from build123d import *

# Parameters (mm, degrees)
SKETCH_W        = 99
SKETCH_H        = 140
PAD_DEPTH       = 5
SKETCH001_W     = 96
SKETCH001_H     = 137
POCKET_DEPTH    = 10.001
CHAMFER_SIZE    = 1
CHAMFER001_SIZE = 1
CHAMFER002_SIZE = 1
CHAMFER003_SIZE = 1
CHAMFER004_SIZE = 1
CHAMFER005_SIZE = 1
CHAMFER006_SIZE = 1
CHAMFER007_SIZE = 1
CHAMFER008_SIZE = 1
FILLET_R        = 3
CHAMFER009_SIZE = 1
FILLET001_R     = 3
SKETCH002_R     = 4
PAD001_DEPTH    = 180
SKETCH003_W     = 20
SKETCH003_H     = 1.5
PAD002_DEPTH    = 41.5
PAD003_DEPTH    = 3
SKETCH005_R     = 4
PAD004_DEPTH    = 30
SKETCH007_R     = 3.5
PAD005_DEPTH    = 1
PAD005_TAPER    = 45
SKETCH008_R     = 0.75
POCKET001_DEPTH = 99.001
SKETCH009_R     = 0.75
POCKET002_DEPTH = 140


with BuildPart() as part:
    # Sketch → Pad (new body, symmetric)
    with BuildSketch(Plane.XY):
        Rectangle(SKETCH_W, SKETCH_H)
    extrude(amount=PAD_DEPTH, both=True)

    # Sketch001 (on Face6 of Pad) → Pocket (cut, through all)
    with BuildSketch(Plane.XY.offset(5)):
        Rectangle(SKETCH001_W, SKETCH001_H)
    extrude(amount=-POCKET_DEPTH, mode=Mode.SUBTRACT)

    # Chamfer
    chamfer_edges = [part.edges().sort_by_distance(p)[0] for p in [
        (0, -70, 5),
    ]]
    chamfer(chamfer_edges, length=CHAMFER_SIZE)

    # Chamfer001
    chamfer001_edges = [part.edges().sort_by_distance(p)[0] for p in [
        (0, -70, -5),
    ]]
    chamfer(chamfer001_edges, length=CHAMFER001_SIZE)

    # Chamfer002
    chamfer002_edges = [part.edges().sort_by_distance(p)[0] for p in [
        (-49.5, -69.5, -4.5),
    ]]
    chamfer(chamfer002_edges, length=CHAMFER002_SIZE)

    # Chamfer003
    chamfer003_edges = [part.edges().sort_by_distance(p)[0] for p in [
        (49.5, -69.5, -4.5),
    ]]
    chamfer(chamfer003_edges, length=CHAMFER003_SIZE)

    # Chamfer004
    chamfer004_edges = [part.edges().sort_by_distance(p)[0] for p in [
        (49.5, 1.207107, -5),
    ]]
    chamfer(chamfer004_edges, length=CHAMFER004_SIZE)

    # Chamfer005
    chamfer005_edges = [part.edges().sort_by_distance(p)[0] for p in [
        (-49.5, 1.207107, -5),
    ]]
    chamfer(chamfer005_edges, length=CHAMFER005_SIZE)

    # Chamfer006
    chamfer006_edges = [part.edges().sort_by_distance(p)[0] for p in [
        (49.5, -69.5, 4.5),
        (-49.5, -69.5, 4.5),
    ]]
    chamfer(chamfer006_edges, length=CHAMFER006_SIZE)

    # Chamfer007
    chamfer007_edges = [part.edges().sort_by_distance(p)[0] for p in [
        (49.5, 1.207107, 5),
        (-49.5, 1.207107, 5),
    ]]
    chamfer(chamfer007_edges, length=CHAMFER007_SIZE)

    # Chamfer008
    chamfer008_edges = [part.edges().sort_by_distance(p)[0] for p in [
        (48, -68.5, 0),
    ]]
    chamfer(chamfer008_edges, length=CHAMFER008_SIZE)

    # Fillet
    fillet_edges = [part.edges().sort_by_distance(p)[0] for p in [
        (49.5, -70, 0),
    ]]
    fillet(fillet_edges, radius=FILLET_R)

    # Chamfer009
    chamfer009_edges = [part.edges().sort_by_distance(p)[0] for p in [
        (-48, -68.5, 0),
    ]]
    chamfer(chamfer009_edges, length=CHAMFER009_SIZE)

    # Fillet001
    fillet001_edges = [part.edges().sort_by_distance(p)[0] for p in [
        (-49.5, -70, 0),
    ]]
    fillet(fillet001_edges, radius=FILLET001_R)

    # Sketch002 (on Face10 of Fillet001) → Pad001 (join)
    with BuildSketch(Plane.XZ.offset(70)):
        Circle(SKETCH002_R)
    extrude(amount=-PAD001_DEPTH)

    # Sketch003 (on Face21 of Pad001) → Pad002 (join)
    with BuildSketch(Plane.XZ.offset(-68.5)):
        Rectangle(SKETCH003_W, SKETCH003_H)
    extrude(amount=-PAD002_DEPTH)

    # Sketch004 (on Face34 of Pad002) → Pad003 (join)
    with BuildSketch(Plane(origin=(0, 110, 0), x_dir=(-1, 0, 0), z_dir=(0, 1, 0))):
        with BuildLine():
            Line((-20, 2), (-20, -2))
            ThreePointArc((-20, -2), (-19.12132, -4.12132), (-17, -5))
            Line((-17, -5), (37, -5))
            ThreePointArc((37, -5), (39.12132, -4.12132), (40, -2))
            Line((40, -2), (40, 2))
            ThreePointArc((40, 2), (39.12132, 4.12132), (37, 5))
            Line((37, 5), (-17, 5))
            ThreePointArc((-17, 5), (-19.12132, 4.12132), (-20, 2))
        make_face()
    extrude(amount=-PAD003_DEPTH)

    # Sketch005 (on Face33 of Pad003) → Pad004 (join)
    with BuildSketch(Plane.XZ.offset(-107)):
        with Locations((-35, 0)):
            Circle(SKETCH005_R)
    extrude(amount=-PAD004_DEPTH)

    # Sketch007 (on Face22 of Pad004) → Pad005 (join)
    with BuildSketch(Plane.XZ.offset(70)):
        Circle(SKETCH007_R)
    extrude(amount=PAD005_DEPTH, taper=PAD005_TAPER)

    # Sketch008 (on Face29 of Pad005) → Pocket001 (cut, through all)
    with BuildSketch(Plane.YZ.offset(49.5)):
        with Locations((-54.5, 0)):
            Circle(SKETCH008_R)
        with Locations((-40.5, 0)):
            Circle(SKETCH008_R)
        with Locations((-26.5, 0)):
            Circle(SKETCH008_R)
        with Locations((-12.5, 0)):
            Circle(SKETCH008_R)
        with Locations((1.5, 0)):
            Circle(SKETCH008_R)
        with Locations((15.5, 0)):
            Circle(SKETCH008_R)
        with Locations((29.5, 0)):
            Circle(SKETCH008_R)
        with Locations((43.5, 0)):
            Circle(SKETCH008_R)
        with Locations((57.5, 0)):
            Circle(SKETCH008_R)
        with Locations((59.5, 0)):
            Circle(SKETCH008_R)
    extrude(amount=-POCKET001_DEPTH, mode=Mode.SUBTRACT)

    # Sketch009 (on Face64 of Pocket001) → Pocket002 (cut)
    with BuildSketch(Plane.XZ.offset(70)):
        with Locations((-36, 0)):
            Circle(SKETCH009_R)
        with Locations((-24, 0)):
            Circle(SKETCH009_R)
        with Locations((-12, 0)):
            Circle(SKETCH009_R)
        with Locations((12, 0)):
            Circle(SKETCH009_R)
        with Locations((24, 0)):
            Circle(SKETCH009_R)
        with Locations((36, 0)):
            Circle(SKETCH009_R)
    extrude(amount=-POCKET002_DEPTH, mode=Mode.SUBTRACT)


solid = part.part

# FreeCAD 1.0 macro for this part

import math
import FreeCAD as App
import Part
import Sketcher
Q = App.Units.Quantity


def edges_at(feature, points):
    """Names of the edges that pass closest to the given points."""
    edges = feature.Shape.Edges
    near = lambda p: min(range(len(edges)), key=lambda i: edges[i].distToShape(Part.Vertex(*p))[0])
    return sorted({f"Edge{near(p) + 1}" for p in points})

doc = App.newDocument("Part")
body = doc.addObject("PartDesign::Body", "Body")

sketch1 = doc.addObject("Sketcher::SketchObject", "Sketch")
body.addObject(sketch1)
sketch1.AttachmentSupport = (doc.XY_Plane, [""])
sketch1.MapMode = "FlatFace"
sketch1.addGeometry([
    Part.LineSegment(App.Vector(-49.5, 70, 0), App.Vector(-49.5, -70, 0)),
    Part.LineSegment(App.Vector(-49.5, -70, 0), App.Vector(49.5, -70, 0)),
    Part.LineSegment(App.Vector(49.5, -70, 0), App.Vector(49.5, 70, 0)),
    Part.LineSegment(App.Vector(49.5, 70, 0), App.Vector(-49.5, 70, 0)),
], False)
sketch1.addConstraint([
    Sketcher.Constraint("Coincident", 0, 2, 1, 1),
    Sketcher.Constraint("Coincident", 1, 2, 2, 1),
    Sketcher.Constraint("Coincident", 2, 2, 3, 1),
    Sketcher.Constraint("Coincident", 3, 2, 0, 1),
    Sketcher.Constraint("Vertical", 0),
    Sketcher.Constraint("Horizontal", 1),
    Sketcher.Constraint("Vertical", 2),
    Sketcher.Constraint("Horizontal", 3),
    Sketcher.Constraint("Symmetric", 0, 2, 2, 2, -1, 1),
    Sketcher.Constraint("DistanceX", 1, 1, 1, 2, Q("99 mm")),
    Sketcher.Constraint("DistanceY", 0, 2, 0, 1, Q("140 mm")),
])
pad1 = doc.addObject("PartDesign::Pad", "Pad")
body.addObject(pad1)
pad1.Profile = sketch1
pad1.Length = 10
pad1.Midplane = True

sketch2 = doc.addObject("Sketcher::SketchObject", "Sketch001")
body.addObject(sketch2)
sketch2.AttachmentSupport = (doc.XY_Plane, [""])
sketch2.MapMode = "FlatFace"
sketch2.AttachmentOffset = App.Placement(App.Vector(0, 0, 5), App.Rotation())
sketch2.addGeometry([
    Part.LineSegment(App.Vector(-48, 68.5, 0), App.Vector(-48, -68.5, 0)),
    Part.LineSegment(App.Vector(-48, -68.5, 0), App.Vector(48, -68.5, 0)),
    Part.LineSegment(App.Vector(48, -68.5, 0), App.Vector(48, 68.5, 0)),
    Part.LineSegment(App.Vector(48, 68.5, 0), App.Vector(-48, 68.5, 0)),
], False)
sketch2.addConstraint([
    Sketcher.Constraint("Coincident", 0, 2, 1, 1),
    Sketcher.Constraint("Coincident", 1, 2, 2, 1),
    Sketcher.Constraint("Coincident", 2, 2, 3, 1),
    Sketcher.Constraint("Coincident", 3, 2, 0, 1),
    Sketcher.Constraint("Vertical", 0),
    Sketcher.Constraint("Horizontal", 1),
    Sketcher.Constraint("Vertical", 2),
    Sketcher.Constraint("Horizontal", 3),
    Sketcher.Constraint("Symmetric", 0, 2, 2, 2, -1, 1),
    Sketcher.Constraint("DistanceX", 1, 1, 1, 2, Q("96 mm")),
    Sketcher.Constraint("DistanceY", 0, 2, 0, 1, Q("137 mm")),
])
pocket1 = doc.addObject("PartDesign::Pocket", "Pocket")
body.addObject(pocket1)
pocket1.Profile = sketch2
pocket1.Type = "ThroughAll"
doc.recompute()

chamfer = doc.addObject("PartDesign::Chamfer", "Chamfer")
body.addObject(chamfer)
chamfer.Base = (pocket1, edges_at(pocket1, [(0, -70, 5)]))
chamfer.Size = 1
doc.recompute()

chamfer2 = doc.addObject("PartDesign::Chamfer", "Chamfer001")
body.addObject(chamfer2)
chamfer2.Base = (chamfer, edges_at(chamfer, [(0, -70, -5)]))
chamfer2.Size = 1
doc.recompute()

chamfer3 = doc.addObject("PartDesign::Chamfer", "Chamfer002")
body.addObject(chamfer3)
chamfer3.Base = (chamfer2, edges_at(chamfer2, [(-49.5, -69.5, -4.5)]))
chamfer3.Size = 1
doc.recompute()

chamfer4 = doc.addObject("PartDesign::Chamfer", "Chamfer003")
body.addObject(chamfer4)
chamfer4.Base = (chamfer3, edges_at(chamfer3, [(49.5, -69.5, -4.5)]))
chamfer4.Size = 1
doc.recompute()

chamfer5 = doc.addObject("PartDesign::Chamfer", "Chamfer004")
body.addObject(chamfer5)
chamfer5.Base = (chamfer4, edges_at(chamfer4, [(49.5, 1.207, -5)]))
chamfer5.Size = 1
doc.recompute()

chamfer6 = doc.addObject("PartDesign::Chamfer", "Chamfer005")
body.addObject(chamfer6)
chamfer6.Base = (chamfer5, edges_at(chamfer5, [(-49.5, 1.207, -5)]))
chamfer6.Size = 1
doc.recompute()

chamfer7 = doc.addObject("PartDesign::Chamfer", "Chamfer006")
body.addObject(chamfer7)
chamfer7.Base = (chamfer6, edges_at(chamfer6, [(49.5, -69.5, 4.5), (-49.5, -69.5, 4.5)]))
chamfer7.Size = 1
doc.recompute()

chamfer8 = doc.addObject("PartDesign::Chamfer", "Chamfer007")
body.addObject(chamfer8)
chamfer8.Base = (chamfer7, edges_at(chamfer7, [(49.5, 1.207, 5), (-49.5, 1.207, 5)]))
chamfer8.Size = 1
doc.recompute()

chamfer9 = doc.addObject("PartDesign::Chamfer", "Chamfer008")
body.addObject(chamfer9)
chamfer9.Base = (chamfer8, edges_at(chamfer8, [(48, -68.5, 0)]))
chamfer9.Size = 1
doc.recompute()

fillet = doc.addObject("PartDesign::Fillet", "Fillet")
body.addObject(fillet)
fillet.Base = (chamfer9, edges_at(chamfer9, [(49.5, -70, 0)]))
fillet.Radius = 3
doc.recompute()

chamfer10 = doc.addObject("PartDesign::Chamfer", "Chamfer009")
body.addObject(chamfer10)
chamfer10.Base = (fillet, edges_at(fillet, [(-48, -68.5, 0)]))
chamfer10.Size = 1
doc.recompute()

fillet2 = doc.addObject("PartDesign::Fillet", "Fillet001")
body.addObject(fillet2)
fillet2.Base = (chamfer10, edges_at(chamfer10, [(-49.5, -70, 0)]))
fillet2.Radius = 3

sketch3 = doc.addObject("Sketcher::SketchObject", "Sketch002")
body.addObject(sketch3)
sketch3.AttachmentSupport = (doc.XZ_Plane, [""])
sketch3.MapMode = "FlatFace"
sketch3.AttachmentOffset = App.Placement(App.Vector(0, 0, 70), App.Rotation())
sketch3.addGeometry(Part.Circle(App.Vector(0, 0, 0), App.Vector(0, 0, 1), 4), False)
sketch3.addConstraint([
    Sketcher.Constraint("Coincident", 0, 3, -1, 1),
    Sketcher.Constraint("Diameter", 0, Q("8 mm")),
])
pad2 = doc.addObject("PartDesign::Pad", "Pad001")
body.addObject(pad2)
pad2.Profile = sketch3
pad2.Length = 180
pad2.Reversed = True

sketch4 = doc.addObject("Sketcher::SketchObject", "Sketch003")
body.addObject(sketch4)
sketch4.AttachmentSupport = (doc.XZ_Plane, [""])
sketch4.MapMode = "FlatFace"
sketch4.AttachmentOffset = App.Placement(App.Vector(0, 0, -68.5), App.Rotation())
sketch4.addGeometry([
    Part.LineSegment(App.Vector(-10, 0.75, 0), App.Vector(-10, -0.75, 0)),
    Part.LineSegment(App.Vector(-10, -0.75, 0), App.Vector(10, -0.75, 0)),
    Part.LineSegment(App.Vector(10, -0.75, 0), App.Vector(10, 0.75, 0)),
    Part.LineSegment(App.Vector(10, 0.75, 0), App.Vector(-10, 0.75, 0)),
], False)
sketch4.addConstraint([
    Sketcher.Constraint("Coincident", 0, 2, 1, 1),
    Sketcher.Constraint("Coincident", 1, 2, 2, 1),
    Sketcher.Constraint("Coincident", 2, 2, 3, 1),
    Sketcher.Constraint("Coincident", 3, 2, 0, 1),
    Sketcher.Constraint("Vertical", 0),
    Sketcher.Constraint("Horizontal", 1),
    Sketcher.Constraint("Vertical", 2),
    Sketcher.Constraint("Horizontal", 3),
    Sketcher.Constraint("Symmetric", 0, 2, 2, 2, -1, 1),
    Sketcher.Constraint("DistanceX", 1, 1, 1, 2, Q("20 mm")),
    Sketcher.Constraint("DistanceY", 0, 2, 0, 1, Q("1.5 mm")),
])
pad3 = doc.addObject("PartDesign::Pad", "Pad002")
body.addObject(pad3)
pad3.Profile = sketch4
pad3.Length = 41.5
pad3.Reversed = True

sketch5 = doc.addObject("Sketcher::SketchObject", "Sketch004")
body.addObject(sketch5)
sketch5.AttachmentSupport = (doc.XZ_Plane, [""])
sketch5.MapMode = "FlatFace"
sketch5.AttachmentOffset = App.Placement(App.Vector(0, 0, -110), App.Rotation())
sketch5.addGeometry([
    Part.LineSegment(App.Vector(20, 2, 0), App.Vector(20, -2, 0)),
    Part.ArcOfCircle(Part.Circle(App.Vector(16.999999, -1.999999, 0), App.Vector(0, 0, 1), 3.000001), math.radians(-89.999978), math.radians(-0.000022)),
    Part.LineSegment(App.Vector(17, -5, 0), App.Vector(-37, -5, 0)),
    Part.ArcOfCircle(Part.Circle(App.Vector(-36.999999, -1.999999, 0), App.Vector(0, 0, 1), 3.000001), math.radians(-179.999978), math.radians(-90.000022)),
    Part.LineSegment(App.Vector(-40, -2, 0), App.Vector(-40, 2, 0)),
    Part.ArcOfCircle(Part.Circle(App.Vector(-36.999999, 1.999999, 0), App.Vector(0, 0, 1), 3.000001), math.radians(90.000022), math.radians(179.999978)),
    Part.LineSegment(App.Vector(-37, 5, 0), App.Vector(17, 5, 0)),
    Part.ArcOfCircle(Part.Circle(App.Vector(16.999999, 1.999999, 0), App.Vector(0, 0, 1), 3.000001), math.radians(0.000022), math.radians(89.999978)),
], False)
sketch5.addConstraint([
    Sketcher.Constraint("Tangent", 0, 2, 1, 2),
    Sketcher.Constraint("Tangent", 1, 1, 2, 1),
    Sketcher.Constraint("Tangent", 2, 2, 3, 2),
    Sketcher.Constraint("Tangent", 3, 1, 4, 1),
    Sketcher.Constraint("Tangent", 4, 2, 5, 2),
    Sketcher.Constraint("Tangent", 5, 1, 6, 1),
    Sketcher.Constraint("Tangent", 6, 2, 7, 2),
    Sketcher.Constraint("Tangent", 7, 1, 0, 1),
    Sketcher.Constraint("Vertical", 0),
    Sketcher.Constraint("Horizontal", 2),
    Sketcher.Constraint("Vertical", 4),
    Sketcher.Constraint("Horizontal", 6),
    Sketcher.Constraint("Equal", 1, 3),
    Sketcher.Constraint("Equal", 3, 5),
    Sketcher.Constraint("Equal", 5, 7),
    Sketcher.Constraint("Radius", 1, Q("3.000001 mm")),
    Sketcher.Constraint("DistanceX", 2, 2, 2, 1, Q("54 mm")),
    Sketcher.Constraint("DistanceY", 0, 2, 0, 1, Q("4 mm")),
    Sketcher.Constraint("DistanceX", -1, 1, 1, 3, Q("16.999999 mm")),
    Sketcher.Constraint("DistanceY", 1, 3, -1, 1, Q("1.999999 mm")),
])
pad4 = doc.addObject("PartDesign::Pad", "Pad003")
body.addObject(pad4)
pad4.Profile = sketch5
pad4.Length = 3

sketch6 = doc.addObject("Sketcher::SketchObject", "Sketch005")
body.addObject(sketch6)
sketch6.AttachmentSupport = (doc.XZ_Plane, [""])
sketch6.MapMode = "FlatFace"
sketch6.AttachmentOffset = App.Placement(App.Vector(0, 0, -107), App.Rotation())
sketch6.addGeometry(Part.Circle(App.Vector(-35, 0, 0), App.Vector(0, 0, 1), 4), False)
sketch6.addConstraint([
    Sketcher.Constraint("PointOnObject", 0, 3, -1),
    Sketcher.Constraint("Diameter", 0, Q("8 mm")),
    Sketcher.Constraint("DistanceX", 0, 3, -1, 1, Q("35 mm")),
])
pad5 = doc.addObject("PartDesign::Pad", "Pad004")
body.addObject(pad5)
pad5.Profile = sketch6
pad5.Length = 30
pad5.Reversed = True

sketch7 = doc.addObject("Sketcher::SketchObject", "Sketch006")
body.addObject(sketch7)
sketch7.AttachmentSupport = (doc.XZ_Plane, [""])
sketch7.MapMode = "FlatFace"
sketch7.AttachmentOffset = App.Placement(App.Vector(0, 0, 70), App.Rotation())
sketch7.addGeometry(Part.Circle(App.Vector(0, 0, 0), App.Vector(0, 0, 1), 3.5), False)
sketch7.addConstraint([
    Sketcher.Constraint("Coincident", 0, 3, -1, 1),
    Sketcher.Constraint("Diameter", 0, Q("7 mm")),
])
pad6 = doc.addObject("PartDesign::Pad", "Pad005")
body.addObject(pad6)
pad6.Profile = sketch7
pad6.Length = 1
pad6.TaperAngle = -45

sketch8 = doc.addObject("Sketcher::SketchObject", "Sketch007")
body.addObject(sketch8)
sketch8.AttachmentSupport = (doc.YZ_Plane, [""])
sketch8.MapMode = "FlatFace"
sketch8.AttachmentOffset = App.Placement(App.Vector(0, 0, 49.5), App.Rotation())
sketch8.addGeometry([
    Part.Circle(App.Vector(-54.5, 0, 0), App.Vector(0, 0, 1), 0.75),
    Part.Circle(App.Vector(-40.5, 0, 0), App.Vector(0, 0, 1), 0.75),
    Part.Circle(App.Vector(-26.5, 0, 0), App.Vector(0, 0, 1), 0.75),
    Part.Circle(App.Vector(-12.5, 0, 0), App.Vector(0, 0, 1), 0.75),
    Part.Circle(App.Vector(1.5, 0, 0), App.Vector(0, 0, 1), 0.75),
    Part.Circle(App.Vector(15.5, 0, 0), App.Vector(0, 0, 1), 0.75),
    Part.Circle(App.Vector(29.5, 0, 0), App.Vector(0, 0, 1), 0.75),
    Part.Circle(App.Vector(43.5, 0, 0), App.Vector(0, 0, 1), 0.75),
    Part.Circle(App.Vector(57.5, 0, 0), App.Vector(0, 0, 1), 0.75),
    Part.Circle(App.Vector(59.5, 0, 0), App.Vector(0, 0, 1), 0.75),
], False)
sketch8.addConstraint([
    Sketcher.Constraint("Equal", 0, 1),
    Sketcher.Constraint("Equal", 1, 2),
    Sketcher.Constraint("Equal", 2, 3),
    Sketcher.Constraint("Equal", 3, 4),
    Sketcher.Constraint("Equal", 4, 5),
    Sketcher.Constraint("Equal", 5, 6),
    Sketcher.Constraint("Equal", 6, 7),
    Sketcher.Constraint("Equal", 7, 8),
    Sketcher.Constraint("Equal", 8, 9),
    Sketcher.Constraint("PointOnObject", 0, 3, -1),
    Sketcher.Constraint("PointOnObject", 1, 3, -1),
    Sketcher.Constraint("PointOnObject", 2, 3, -1),
    Sketcher.Constraint("PointOnObject", 3, 3, -1),
    Sketcher.Constraint("PointOnObject", 4, 3, -1),
    Sketcher.Constraint("PointOnObject", 5, 3, -1),
    Sketcher.Constraint("PointOnObject", 6, 3, -1),
    Sketcher.Constraint("PointOnObject", 7, 3, -1),
    Sketcher.Constraint("PointOnObject", 8, 3, -1),
    Sketcher.Constraint("PointOnObject", 9, 3, -1),
    Sketcher.Constraint("Diameter", 0, Q("1.5 mm")),
    Sketcher.Constraint("DistanceX", 0, 3, 1, 3, Q("14 mm")),
    Sketcher.Constraint("DistanceX", 1, 3, 2, 3, Q("14 mm")),
    Sketcher.Constraint("DistanceX", 2, 3, 3, 3, Q("14 mm")),
    Sketcher.Constraint("DistanceX", 3, 3, 4, 3, Q("14 mm")),
    Sketcher.Constraint("DistanceX", 4, 3, 5, 3, Q("14 mm")),
    Sketcher.Constraint("DistanceX", 5, 3, 6, 3, Q("14 mm")),
    Sketcher.Constraint("DistanceX", 6, 3, 7, 3, Q("14 mm")),
    Sketcher.Constraint("DistanceX", 7, 3, 8, 3, Q("14 mm")),
    Sketcher.Constraint("DistanceX", 8, 3, 9, 3, Q("2 mm")),
    Sketcher.Constraint("DistanceX", 0, 3, -1, 1, Q("54.5 mm")),
])
pocket2 = doc.addObject("PartDesign::Pocket", "Pocket001")
body.addObject(pocket2)
pocket2.Profile = sketch8
pocket2.Type = "ThroughAll"

sketch9 = doc.addObject("Sketcher::SketchObject", "Sketch008")
body.addObject(sketch9)
sketch9.AttachmentSupport = (doc.XZ_Plane, [""])
sketch9.MapMode = "FlatFace"
sketch9.AttachmentOffset = App.Placement(App.Vector(0, 0, 70), App.Rotation())
sketch9.addGeometry([
    Part.Circle(App.Vector(-36, 0, 0), App.Vector(0, 0, 1), 0.75),
    Part.Circle(App.Vector(-24, 0, 0), App.Vector(0, 0, 1), 0.75),
    Part.Circle(App.Vector(-12, 0, 0), App.Vector(0, 0, 1), 0.75),
    Part.Circle(App.Vector(12, 0, 0), App.Vector(0, 0, 1), 0.75),
    Part.Circle(App.Vector(24, 0, 0), App.Vector(0, 0, 1), 0.75),
    Part.Circle(App.Vector(36, 0, 0), App.Vector(0, 0, 1), 0.75),
], False)
sketch9.addConstraint([
    Sketcher.Constraint("Equal", 0, 1),
    Sketcher.Constraint("Equal", 1, 2),
    Sketcher.Constraint("Equal", 2, 3),
    Sketcher.Constraint("Equal", 3, 4),
    Sketcher.Constraint("Equal", 4, 5),
    Sketcher.Constraint("Symmetric", 2, 3, 3, 3, -1, 1),
    Sketcher.Constraint("Symmetric", 1, 3, 4, 3, -1, 1),
    Sketcher.Constraint("Symmetric", 0, 3, 5, 3, -1, 1),
    Sketcher.Constraint("PointOnObject", 0, 3, -1),
    Sketcher.Constraint("PointOnObject", 1, 3, -1),
    Sketcher.Constraint("PointOnObject", 2, 3, -1),
    Sketcher.Constraint("Diameter", 0, Q("1.5 mm")),
    Sketcher.Constraint("DistanceX", 0, 3, -1, 1, Q("36 mm")),
    Sketcher.Constraint("DistanceX", 1, 3, -1, 1, Q("24 mm")),
    Sketcher.Constraint("DistanceX", 2, 3, -1, 1, Q("12 mm")),
])
pocket3 = doc.addObject("PartDesign::Pocket", "Pocket002")
body.addObject(pocket3)
pocket3.Profile = sketch9
pocket3.Length = 140

doc.recompute()
